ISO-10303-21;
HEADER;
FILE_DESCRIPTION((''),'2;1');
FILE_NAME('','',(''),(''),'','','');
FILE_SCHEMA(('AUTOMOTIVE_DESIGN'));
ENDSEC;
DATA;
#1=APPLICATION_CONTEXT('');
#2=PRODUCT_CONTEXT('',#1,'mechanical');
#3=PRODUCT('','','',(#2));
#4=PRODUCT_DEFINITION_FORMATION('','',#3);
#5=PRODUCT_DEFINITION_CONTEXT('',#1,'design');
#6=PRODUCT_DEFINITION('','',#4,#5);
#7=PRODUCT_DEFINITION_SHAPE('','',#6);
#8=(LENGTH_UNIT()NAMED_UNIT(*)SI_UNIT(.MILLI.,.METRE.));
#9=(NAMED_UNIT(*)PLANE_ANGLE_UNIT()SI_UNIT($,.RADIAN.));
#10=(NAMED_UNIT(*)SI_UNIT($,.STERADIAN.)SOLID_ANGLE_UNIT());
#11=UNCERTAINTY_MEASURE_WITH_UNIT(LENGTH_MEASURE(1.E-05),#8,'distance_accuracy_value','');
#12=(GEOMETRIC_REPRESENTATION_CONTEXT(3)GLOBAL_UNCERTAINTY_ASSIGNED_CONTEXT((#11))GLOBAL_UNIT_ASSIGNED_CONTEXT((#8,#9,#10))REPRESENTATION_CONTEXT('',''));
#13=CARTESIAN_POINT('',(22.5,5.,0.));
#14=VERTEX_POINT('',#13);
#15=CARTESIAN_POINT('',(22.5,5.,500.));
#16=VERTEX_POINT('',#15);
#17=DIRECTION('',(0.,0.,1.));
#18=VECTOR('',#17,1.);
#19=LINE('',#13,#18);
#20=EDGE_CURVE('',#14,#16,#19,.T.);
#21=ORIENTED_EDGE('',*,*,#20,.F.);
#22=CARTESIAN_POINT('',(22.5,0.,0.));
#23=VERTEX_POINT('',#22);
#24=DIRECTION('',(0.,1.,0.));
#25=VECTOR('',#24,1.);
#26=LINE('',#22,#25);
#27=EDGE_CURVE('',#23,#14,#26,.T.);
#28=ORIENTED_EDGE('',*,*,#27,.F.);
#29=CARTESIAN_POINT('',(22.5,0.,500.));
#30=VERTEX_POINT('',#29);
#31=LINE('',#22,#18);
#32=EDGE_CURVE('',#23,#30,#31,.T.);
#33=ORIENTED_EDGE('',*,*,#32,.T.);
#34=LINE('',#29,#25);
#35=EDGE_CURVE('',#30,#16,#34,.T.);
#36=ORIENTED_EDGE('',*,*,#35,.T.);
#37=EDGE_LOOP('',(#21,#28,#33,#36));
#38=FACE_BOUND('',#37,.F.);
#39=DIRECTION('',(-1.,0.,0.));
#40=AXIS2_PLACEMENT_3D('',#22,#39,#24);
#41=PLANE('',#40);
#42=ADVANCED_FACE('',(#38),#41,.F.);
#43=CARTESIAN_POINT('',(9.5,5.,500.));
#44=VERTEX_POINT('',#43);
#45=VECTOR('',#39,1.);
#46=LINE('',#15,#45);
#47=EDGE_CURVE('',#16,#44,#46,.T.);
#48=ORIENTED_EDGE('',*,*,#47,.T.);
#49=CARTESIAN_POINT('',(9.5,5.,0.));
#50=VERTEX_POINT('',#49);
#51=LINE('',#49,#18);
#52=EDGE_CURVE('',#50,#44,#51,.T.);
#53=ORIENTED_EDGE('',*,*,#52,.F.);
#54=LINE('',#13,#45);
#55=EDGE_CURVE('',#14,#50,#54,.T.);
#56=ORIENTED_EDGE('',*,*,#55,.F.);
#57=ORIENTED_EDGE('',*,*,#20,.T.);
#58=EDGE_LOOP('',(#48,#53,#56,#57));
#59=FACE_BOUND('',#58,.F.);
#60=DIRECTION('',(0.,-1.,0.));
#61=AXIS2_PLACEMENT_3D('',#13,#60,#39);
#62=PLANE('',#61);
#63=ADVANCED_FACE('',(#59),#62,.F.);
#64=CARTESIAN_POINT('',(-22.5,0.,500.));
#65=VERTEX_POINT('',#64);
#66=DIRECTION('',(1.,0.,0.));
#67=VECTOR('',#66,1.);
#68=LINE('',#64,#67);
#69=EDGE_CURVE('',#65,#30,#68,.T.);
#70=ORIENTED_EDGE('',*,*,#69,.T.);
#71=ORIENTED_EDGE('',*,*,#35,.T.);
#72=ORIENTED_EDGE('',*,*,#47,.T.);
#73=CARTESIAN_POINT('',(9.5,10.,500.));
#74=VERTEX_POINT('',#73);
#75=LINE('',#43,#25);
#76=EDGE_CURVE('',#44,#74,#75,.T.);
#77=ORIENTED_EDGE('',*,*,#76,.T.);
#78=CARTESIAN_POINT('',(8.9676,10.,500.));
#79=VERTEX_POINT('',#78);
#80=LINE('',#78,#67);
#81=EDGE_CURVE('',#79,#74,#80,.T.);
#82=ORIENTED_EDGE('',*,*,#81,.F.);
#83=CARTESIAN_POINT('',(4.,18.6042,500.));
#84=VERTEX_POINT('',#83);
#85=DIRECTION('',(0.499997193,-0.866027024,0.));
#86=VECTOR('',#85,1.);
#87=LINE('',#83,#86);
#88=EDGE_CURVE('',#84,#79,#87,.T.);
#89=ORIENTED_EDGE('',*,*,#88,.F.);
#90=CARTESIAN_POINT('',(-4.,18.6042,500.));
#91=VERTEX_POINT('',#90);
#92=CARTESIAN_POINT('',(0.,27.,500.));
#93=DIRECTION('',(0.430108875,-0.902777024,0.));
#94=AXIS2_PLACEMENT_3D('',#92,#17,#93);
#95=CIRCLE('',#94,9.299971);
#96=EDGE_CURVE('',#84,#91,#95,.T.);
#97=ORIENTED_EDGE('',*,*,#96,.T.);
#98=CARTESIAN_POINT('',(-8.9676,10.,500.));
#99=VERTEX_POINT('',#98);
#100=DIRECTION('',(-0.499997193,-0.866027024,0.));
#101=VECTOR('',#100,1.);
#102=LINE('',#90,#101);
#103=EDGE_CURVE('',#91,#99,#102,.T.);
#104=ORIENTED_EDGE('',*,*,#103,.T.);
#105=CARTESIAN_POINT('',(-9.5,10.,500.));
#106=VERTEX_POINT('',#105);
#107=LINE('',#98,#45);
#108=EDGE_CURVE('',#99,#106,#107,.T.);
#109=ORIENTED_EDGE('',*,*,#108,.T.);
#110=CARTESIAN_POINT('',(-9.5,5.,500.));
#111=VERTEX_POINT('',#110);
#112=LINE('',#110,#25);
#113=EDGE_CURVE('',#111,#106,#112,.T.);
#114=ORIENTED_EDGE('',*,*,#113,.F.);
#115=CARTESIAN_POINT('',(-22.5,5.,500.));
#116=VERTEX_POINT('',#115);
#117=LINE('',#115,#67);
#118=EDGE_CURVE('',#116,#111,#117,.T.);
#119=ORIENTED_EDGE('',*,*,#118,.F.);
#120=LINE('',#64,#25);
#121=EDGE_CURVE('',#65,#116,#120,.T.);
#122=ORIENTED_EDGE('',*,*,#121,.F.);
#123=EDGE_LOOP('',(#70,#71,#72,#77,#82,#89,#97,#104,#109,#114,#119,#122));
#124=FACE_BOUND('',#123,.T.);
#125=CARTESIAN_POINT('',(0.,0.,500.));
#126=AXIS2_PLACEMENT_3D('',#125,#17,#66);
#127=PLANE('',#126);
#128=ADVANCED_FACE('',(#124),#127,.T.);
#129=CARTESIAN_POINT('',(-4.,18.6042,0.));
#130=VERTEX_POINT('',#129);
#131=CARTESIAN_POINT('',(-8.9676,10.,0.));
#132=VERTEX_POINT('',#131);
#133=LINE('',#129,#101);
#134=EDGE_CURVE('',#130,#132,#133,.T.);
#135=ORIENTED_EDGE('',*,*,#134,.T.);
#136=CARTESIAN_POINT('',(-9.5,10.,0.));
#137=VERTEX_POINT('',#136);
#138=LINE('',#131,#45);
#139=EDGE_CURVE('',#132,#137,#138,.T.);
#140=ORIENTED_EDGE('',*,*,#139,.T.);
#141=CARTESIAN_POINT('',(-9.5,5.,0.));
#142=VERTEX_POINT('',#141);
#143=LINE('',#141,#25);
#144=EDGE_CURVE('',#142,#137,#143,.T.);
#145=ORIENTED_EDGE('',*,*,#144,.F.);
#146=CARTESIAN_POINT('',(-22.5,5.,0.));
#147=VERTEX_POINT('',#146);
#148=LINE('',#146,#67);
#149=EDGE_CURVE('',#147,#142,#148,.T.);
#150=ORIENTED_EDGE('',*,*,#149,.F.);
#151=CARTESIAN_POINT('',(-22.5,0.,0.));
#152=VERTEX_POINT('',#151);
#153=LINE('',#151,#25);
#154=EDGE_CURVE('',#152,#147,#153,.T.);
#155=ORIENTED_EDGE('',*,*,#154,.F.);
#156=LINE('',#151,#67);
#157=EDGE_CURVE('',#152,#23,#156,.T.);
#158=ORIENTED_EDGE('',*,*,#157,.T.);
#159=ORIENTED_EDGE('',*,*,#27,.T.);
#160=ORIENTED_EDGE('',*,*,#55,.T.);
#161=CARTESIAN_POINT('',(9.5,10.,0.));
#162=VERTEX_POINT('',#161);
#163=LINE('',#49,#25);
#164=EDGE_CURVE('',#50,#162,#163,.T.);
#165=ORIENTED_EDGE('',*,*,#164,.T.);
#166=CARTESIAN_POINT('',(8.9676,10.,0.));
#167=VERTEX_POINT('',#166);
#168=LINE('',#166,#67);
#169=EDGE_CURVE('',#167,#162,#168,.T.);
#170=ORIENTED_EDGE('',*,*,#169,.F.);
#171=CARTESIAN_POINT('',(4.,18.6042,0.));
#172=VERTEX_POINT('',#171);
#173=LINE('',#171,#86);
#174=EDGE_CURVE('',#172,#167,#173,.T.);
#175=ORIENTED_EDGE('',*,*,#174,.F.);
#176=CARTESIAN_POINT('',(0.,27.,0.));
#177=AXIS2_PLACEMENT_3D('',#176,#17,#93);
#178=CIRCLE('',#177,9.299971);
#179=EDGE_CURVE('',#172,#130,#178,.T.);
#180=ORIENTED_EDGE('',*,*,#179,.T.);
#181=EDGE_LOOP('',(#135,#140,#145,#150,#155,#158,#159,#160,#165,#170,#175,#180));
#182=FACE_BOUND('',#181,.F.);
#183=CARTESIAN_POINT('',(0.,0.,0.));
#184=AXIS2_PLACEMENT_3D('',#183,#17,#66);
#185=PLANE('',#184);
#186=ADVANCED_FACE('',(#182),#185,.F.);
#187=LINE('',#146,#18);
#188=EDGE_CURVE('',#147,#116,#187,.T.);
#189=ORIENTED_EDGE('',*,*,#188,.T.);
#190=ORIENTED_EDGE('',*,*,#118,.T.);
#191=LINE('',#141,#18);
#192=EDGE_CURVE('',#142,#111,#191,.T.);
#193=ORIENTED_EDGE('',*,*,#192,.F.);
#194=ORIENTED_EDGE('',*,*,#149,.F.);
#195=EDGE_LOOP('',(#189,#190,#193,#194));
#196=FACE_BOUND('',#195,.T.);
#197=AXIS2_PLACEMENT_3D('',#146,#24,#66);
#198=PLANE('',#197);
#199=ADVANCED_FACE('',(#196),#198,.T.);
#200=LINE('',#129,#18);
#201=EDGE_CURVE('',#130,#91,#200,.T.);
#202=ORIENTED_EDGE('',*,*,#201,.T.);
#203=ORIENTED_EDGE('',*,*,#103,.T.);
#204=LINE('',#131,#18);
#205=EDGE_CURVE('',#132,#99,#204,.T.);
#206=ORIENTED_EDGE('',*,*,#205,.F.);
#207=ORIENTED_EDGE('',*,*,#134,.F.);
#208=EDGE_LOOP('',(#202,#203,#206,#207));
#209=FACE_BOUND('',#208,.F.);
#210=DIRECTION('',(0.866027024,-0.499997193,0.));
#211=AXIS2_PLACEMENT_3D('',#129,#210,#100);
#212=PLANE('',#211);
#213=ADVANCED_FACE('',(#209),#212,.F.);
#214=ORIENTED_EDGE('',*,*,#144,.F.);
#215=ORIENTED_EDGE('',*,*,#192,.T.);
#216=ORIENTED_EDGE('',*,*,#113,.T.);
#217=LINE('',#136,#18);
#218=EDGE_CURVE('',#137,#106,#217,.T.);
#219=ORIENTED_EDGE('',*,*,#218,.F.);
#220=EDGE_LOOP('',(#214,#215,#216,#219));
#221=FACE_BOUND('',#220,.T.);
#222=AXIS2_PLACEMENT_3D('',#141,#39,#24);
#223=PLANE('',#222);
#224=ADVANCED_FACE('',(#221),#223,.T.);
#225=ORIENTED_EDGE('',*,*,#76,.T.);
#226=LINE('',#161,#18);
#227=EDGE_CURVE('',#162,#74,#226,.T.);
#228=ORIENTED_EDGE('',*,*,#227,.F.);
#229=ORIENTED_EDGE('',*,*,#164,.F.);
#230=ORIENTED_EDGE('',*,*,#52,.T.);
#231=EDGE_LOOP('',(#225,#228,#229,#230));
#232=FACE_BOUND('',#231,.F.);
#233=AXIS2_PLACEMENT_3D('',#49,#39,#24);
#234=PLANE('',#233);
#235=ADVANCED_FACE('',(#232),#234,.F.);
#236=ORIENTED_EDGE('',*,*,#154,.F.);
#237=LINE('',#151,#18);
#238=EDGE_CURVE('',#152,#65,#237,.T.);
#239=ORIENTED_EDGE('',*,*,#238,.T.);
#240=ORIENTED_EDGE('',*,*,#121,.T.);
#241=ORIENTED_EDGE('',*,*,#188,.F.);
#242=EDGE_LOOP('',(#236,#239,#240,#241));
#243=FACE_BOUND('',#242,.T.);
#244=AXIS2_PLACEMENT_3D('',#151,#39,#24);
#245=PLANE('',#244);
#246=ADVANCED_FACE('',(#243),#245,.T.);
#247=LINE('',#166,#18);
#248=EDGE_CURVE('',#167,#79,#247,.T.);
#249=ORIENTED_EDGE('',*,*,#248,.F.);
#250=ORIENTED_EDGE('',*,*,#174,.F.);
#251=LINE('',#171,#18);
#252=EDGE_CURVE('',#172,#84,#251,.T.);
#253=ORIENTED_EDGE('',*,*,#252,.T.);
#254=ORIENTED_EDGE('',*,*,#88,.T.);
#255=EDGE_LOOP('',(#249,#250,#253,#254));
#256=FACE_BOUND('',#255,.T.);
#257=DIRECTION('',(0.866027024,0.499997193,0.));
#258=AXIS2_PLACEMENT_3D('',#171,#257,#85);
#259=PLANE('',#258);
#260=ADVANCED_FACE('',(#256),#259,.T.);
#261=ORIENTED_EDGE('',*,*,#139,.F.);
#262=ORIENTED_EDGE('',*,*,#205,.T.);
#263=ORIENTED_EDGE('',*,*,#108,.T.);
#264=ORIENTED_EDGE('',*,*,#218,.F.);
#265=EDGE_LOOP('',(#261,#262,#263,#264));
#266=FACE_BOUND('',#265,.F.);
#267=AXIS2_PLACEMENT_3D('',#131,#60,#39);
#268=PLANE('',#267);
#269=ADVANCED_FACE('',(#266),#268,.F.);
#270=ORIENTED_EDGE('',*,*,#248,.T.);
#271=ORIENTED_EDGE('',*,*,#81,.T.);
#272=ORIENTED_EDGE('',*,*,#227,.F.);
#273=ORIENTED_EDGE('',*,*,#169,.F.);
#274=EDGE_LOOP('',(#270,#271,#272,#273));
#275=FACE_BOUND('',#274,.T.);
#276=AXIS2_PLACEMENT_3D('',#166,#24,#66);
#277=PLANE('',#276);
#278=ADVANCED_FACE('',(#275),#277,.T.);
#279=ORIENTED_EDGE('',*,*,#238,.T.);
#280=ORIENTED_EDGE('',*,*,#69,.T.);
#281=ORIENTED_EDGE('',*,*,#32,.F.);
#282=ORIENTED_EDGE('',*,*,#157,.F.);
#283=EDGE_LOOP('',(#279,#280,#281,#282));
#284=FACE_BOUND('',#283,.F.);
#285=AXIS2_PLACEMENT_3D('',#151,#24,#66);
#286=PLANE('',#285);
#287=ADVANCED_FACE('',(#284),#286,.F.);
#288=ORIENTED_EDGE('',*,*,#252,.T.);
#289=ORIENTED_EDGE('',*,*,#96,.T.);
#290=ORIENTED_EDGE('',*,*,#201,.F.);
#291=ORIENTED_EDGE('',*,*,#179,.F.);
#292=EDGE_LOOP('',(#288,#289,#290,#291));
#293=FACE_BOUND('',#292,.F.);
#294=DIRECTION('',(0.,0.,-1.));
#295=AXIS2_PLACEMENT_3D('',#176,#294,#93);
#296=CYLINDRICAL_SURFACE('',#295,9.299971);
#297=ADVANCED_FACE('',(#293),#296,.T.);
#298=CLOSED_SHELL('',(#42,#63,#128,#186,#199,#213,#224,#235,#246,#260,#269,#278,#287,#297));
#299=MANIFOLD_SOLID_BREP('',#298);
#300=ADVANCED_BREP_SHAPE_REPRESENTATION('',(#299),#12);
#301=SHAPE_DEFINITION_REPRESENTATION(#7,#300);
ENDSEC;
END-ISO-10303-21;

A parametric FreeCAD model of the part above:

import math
import FreeCAD as App
import Part
import Sketcher
Q = App.Units.Quantity

doc = App.newDocument("Part")
params = doc.addObject("Spreadsheet::Sheet", "Params")
for row, (alias, value) in enumerate([
    ("sketch1_radius", "9.3 mm"),
    ("sketch1_width", "45 mm"),
    ("sketch1_width2", "13 mm"),
    ("sketch1_height", "5 mm"),
    ("pad1_length", "500 mm"),
], start=1):
    params.set(f"A{row}", alias)
    params.set(f"B{row}", "=" + value)
    params.setAlias(f"B{row}", alias)

body = doc.addObject("PartDesign::Body", "Body")

# Sketch on XY plane
sketch1 = body.newObject("Sketcher::SketchObject", "Sketch")
sketch1.AttachmentSupport = (doc.getObject("XY_Plane"), [""])
sketch1.MapMode = "FlatFace"
sketch1.addGeometry(Part.LineSegment(App.Vector(-22.5, 5, 0), App.Vector(-22.5, 0, 0)), False)
sketch1.addGeometry(Part.LineSegment(App.Vector(-22.5, 0, 0), App.Vector(22.5, 0, 0)), False)
sketch1.addGeometry(Part.LineSegment(App.Vector(22.5, 0, 0), App.Vector(22.5, 5, 0)), False)
sketch1.addGeometry(Part.LineSegment(App.Vector(22.5, 5, 0), App.Vector(9.5, 5, 0)), False)
sketch1.addGeometry(Part.LineSegment(App.Vector(9.5, 5, 0), App.Vector(9.5, 10, 0)), False)
sketch1.addGeometry(Part.LineSegment(App.Vector(9.5, 10, 0), App.Vector(8.9676, 10, 0)), False)
sketch1.addGeometry(Part.LineSegment(App.Vector(8.9676, 10, 0), App.Vector(4, 18.6042, 0)), False)
sketch1.addGeometry(Part.ArcOfCircle(Part.Circle(App.Vector(0, 27, 0), App.Vector(0, 0, 1), 9.299971), math.radians(-64.52553), math.radians(244.52553)), False)
sketch1.addGeometry(Part.LineSegment(App.Vector(-4, 18.6042, 0), App.Vector(-8.9676, 10, 0)), False)
sketch1.addGeometry(Part.LineSegment(App.Vector(-8.9676, 10, 0), App.Vector(-9.5, 10, 0)), False)
sketch1.addGeometry(Part.LineSegment(App.Vector(-9.5, 10, 0), App.Vector(-9.5, 5, 0)), False)
sketch1.addGeometry(Part.LineSegment(App.Vector(-9.5, 5, 0), App.Vector(-22.5, 5, 0)), False)
sketch1.addConstraint(Sketcher.Constraint("Coincident", 0, 2, 1, 1))
sketch1.addConstraint(Sketcher.Constraint("Coincident", 1, 2, 2, 1))
sketch1.addConstraint(Sketcher.Constraint("Coincident", 2, 2, 3, 1))
sketch1.addConstraint(Sketcher.Constraint("Coincident", 3, 2, 4, 1))
sketch1.addConstraint(Sketcher.Constraint("Coincident", 4, 2, 5, 1))
sketch1.addConstraint(Sketcher.Constraint("Coincident", 5, 2, 6, 1))
sketch1.addConstraint(Sketcher.Constraint("Coincident", 6, 2, 7, 1))
sketch1.addConstraint(Sketcher.Constraint("Coincident", 7, 2, 8, 1))
sketch1.addConstraint(Sketcher.Constraint("Coincident", 8, 2, 9, 1))
sketch1.addConstraint(Sketcher.Constraint("Coincident", 9, 2, 10, 1))
sketch1.addConstraint(Sketcher.Constraint("Coincident", 10, 2, 11, 1))
sketch1.addConstraint(Sketcher.Constraint("Coincident", 11, 2, 0, 1))
sketch1.addConstraint(Sketcher.Constraint("Vertical", 0))
sketch1.addConstraint(Sketcher.Constraint("Horizontal", 1))
sketch1.addConstraint(Sketcher.Constraint("Vertical", 2))
sketch1.addConstraint(Sketcher.Constraint("Horizontal", 3))
sketch1.addConstraint(Sketcher.Constraint("Vertical", 4))
sketch1.addConstraint(Sketcher.Constraint("Horizontal", 5))
sketch1.addConstraint(Sketcher.Constraint("Horizontal", 9))
sketch1.addConstraint(Sketcher.Constraint("Vertical", 10))
sketch1.addConstraint(Sketcher.Constraint("Horizontal", 11))
sketch1.addConstraint(Sketcher.Constraint("Symmetric", 0, 2, 1, 2, -1, 1))
sketch1.addConstraint(Sketcher.Constraint("Symmetric", 6, 2, 7, 2, -2))
sketch1.addConstraint(Sketcher.Constraint("Symmetric", 5, 2, 8, 2, -2))
sketch1.addConstraint(Sketcher.Constraint("Symmetric", 3, 2, 10, 2, -2))
sketch1.addConstraint(Sketcher.Constraint("Equal", 2, 4))
sketch1.addConstraint(Sketcher.Constraint("Radius", 7, 9.3))
sketch1.addConstraint(Sketcher.Constraint("DistanceX", 1, 1, 1, 2, 45.0))
sketch1.addConstraint(Sketcher.Constraint("DistanceX", 3, 2, 3, 1, 13.0))
sketch1.addConstraint(Sketcher.Constraint("DistanceY", 0, 2, 0, 1, 5.0))
sketch1.addConstraint(Sketcher.Constraint("DistanceY", -1, 1, 7, 3, 27.0))
sketch1.addConstraint(Sketcher.Constraint("DistanceX", -1, 1, 6, 2, 4.0))
sketch1.addConstraint(Sketcher.Constraint("Angle", 6, Q("119.9998 deg")))
sketch1.setExpression("Constraints[26]", "Params.sketch1_radius")
sketch1.setExpression("Constraints[27]", "Params.sketch1_width")
sketch1.setExpression("Constraints[28]", "Params.sketch1_width2")
sketch1.setExpression("Constraints[29]", "Params.sketch1_height")
pad1 = body.newObject("PartDesign::Pad", "Pad")
pad1.Profile = sketch1
pad1.setExpression("Length", "Params.pad1_length")

doc.recompute()
